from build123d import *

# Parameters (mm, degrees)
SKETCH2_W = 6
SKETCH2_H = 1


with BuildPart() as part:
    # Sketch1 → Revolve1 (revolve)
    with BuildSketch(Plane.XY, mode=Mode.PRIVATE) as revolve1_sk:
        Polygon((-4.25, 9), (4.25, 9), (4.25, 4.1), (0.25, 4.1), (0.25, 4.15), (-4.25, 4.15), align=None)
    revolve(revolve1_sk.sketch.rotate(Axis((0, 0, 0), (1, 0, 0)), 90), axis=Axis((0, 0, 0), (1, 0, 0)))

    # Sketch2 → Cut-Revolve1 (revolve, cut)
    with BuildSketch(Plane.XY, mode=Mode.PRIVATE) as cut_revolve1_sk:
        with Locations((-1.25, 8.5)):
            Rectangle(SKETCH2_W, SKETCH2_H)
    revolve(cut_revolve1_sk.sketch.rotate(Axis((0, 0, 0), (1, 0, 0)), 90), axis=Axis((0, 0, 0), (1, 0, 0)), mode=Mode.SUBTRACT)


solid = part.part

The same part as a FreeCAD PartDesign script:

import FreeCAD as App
import Part
import Sketcher
from FreeCAD import Vector


def add_polygon(sketch, points):
    """Adds a closed chain of lines whose ends are joined by coincident constraints."""
    first, n = sketch.GeometryCount, len(points)
    for a, b in zip(points, points[1:] + points[:1]):
        sketch.addGeometry(Part.LineSegment(App.Vector(*a, 0), App.Vector(*b, 0)), False)
    for i in range(n):
        sketch.addConstraint(Sketcher.Constraint("Coincident", first + i, 2, first + (i + 1) % n, 1))

doc = App.newDocument("Part")
params = doc.addObject("Spreadsheet::Sheet", "Params")
for row, (alias, value) in enumerate([
    ("sketch1_width", "4 mm"),
    ("sketch1_width2", "8.5 mm"),
    ("sketch1_height", "4.9 mm"),
    ("sketch1_height2", "4.85 mm"),
    ("revolution_angle", "360 deg"),
    ("sketch2_width", "6 mm"),
    ("sketch2_height", "1 mm"),
    ("groove_angle", "360 deg"),
], start=1):
    params.set(f"A{row}", alias)
    params.set(f"B{row}", "=" + value)
    params.setAlias(f"B{row}", alias)

body = doc.addObject("PartDesign::Body", "Body")

sketch1 = body.newObject("Sketcher::SketchObject", "Sketch")
sketch1.AttachmentSupport = (doc.getObject("XY_Plane"), [""])
sketch1.MapMode = "FlatFace"
add_polygon(sketch1, [(4.25, 9), (-4.25, 9), (-4.25, 4.15), (0.25, 4.15), (0.25, 4.1), (4.25, 4.1)])
sketch1.addConstraint([
    Sketcher.Constraint("Horizontal", 0),
    Sketcher.Constraint("Vertical", 1),
    Sketcher.Constraint("Horizontal", 2),
    Sketcher.Constraint("Vertical", 3),
    Sketcher.Constraint("Horizontal", 4),
    Sketcher.Constraint("Vertical", 5),
    Sketcher.Constraint("DistanceX", 4, 1, 4, 2, 4.0),
    Sketcher.Constraint("DistanceX", 0, 2, 0, 1, 8.5),
    Sketcher.Constraint("DistanceY", 5, 1, 5, 2, 4.9),
    Sketcher.Constraint("DistanceY", -1, 1, 0, 2, 9.0),
    Sketcher.Constraint("DistanceY", 1, 2, 1, 1, 4.85),
    Sketcher.Constraint("DistanceX", 0, 2, -1, 1, 4.25),
])
sketch1.setExpression("Constraints[12]", "Params.sketch1_width")
sketch1.setExpression("Constraints[13]", "Params.sketch1_width2")
sketch1.setExpression("Constraints[14]", "Params.sketch1_height")
sketch1.setExpression("Constraints[16]", "Params.sketch1_height2")
revolution = body.newObject("PartDesign::Revolution", "Revolution")
revolution.Profile = sketch1
revolution.ReferenceAxis = (sketch1, ["H_Axis"])
revolution.setExpression("Angle", "Params.revolution_angle")

sketch2 = body.newObject("Sketcher::SketchObject", "Sketch001")
sketch2.AttachmentSupport = (doc.getObject("XY_Plane"), [""])
sketch2.MapMode = "FlatFace"
add_polygon(sketch2, [(-4.2, 9), (-4.2, 8), (1.8, 8), (1.8, 9)])
sketch2.addConstraint([
    Sketcher.Constraint("Vertical", 0),
    Sketcher.Constraint("Horizontal", 1),
    Sketcher.Constraint("Vertical", 2),
    Sketcher.Constraint("Horizontal", 3),
    Sketcher.Constraint("DistanceX", 1, 1, 1, 2, 6.0),
    Sketcher.Constraint("DistanceY", 0, 2, 0, 1, 1.0),
    Sketcher.Constraint("DistanceY", -1, 1, 0, 2, 8.0),
    Sketcher.Constraint("DistanceX", 0, 2, -1, 1, 4.25),
])
sketch2.setExpression("Constraints[8]", "Params.sketch2_width")
sketch2.setExpression("Constraints[9]", "Params.sketch2_height")
groove = body.newObject("PartDesign::Groove", "Groove")
groove.Profile = sketch2
groove.ReferenceAxis = (sketch2, ["H_Axis"])
groove.setExpression("Angle", "Params.groove_angle")

doc.recompute()
